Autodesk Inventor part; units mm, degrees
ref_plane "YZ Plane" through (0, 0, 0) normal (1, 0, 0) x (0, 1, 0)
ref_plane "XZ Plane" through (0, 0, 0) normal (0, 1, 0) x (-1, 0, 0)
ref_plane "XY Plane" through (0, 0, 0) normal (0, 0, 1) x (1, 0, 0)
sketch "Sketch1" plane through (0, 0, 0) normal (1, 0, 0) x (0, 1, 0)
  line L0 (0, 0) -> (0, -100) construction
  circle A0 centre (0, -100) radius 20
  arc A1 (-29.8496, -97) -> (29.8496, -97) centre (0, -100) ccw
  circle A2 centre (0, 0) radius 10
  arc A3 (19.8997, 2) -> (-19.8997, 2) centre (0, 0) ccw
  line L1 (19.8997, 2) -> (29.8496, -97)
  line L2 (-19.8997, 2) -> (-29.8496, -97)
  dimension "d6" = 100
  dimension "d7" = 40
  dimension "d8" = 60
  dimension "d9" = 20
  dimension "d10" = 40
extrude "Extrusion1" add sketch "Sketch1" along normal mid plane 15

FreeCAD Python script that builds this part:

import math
import FreeCAD as App
import Part
import Sketcher

V = App.Vector
Q = App.Units.Quantity

doc = App.newDocument("Part")
body = doc.addObject("PartDesign::Body", "Body")

sketch1 = body.newObject("Sketcher::SketchObject", "Sketch")
sketch1.AttachmentSupport = (doc.getObject("YZ_Plane"), [""])
sketch1.MapMode = "FlatFace"
sketch1.addGeometry(Part.LineSegment(V(-19.8997, 2, 0), V(-29.8496, -97, 0)), False)
sketch1.addGeometry(Part.ArcOfCircle(Part.Circle(V(0, -100, 0), V(0, 0, 1), 29.999977), math.radians(174.260825), math.radians(365.739175)), False)
sketch1.addGeometry(Part.LineSegment(V(29.8496, -97, 0), V(19.8997, 2, 0)), False)
sketch1.addGeometry(Part.ArcOfCircle(Part.Circle(V(0, 0, 0), V(0, 0, 1), 19.999952), math.radians(5.739184), math.radians(174.260816)), False)
sketch1.addGeometry(Part.Circle(V(0, -100, 0), V(0, 0, 1), 20), False)
sketch1.addGeometry(Part.Circle(V(0, 0, 0), V(0, 0, 1), 10), False)
sketch1.addConstraint(Sketcher.Constraint("Tangent", 0, 2, 1, 1))
sketch1.addConstraint(Sketcher.Constraint("Tangent", 1, 2, 2, 1))
sketch1.addConstraint(Sketcher.Constraint("Tangent", 2, 2, 3, 1))
sketch1.addConstraint(Sketcher.Constraint("Tangent", 3, 2, 0, 1))
sketch1.addConstraint(Sketcher.Constraint("Coincident", 3, 3, -1, 1))
sketch1.addConstraint(Sketcher.Constraint("Coincident", 5, 3, -1, 1))
sketch1.addConstraint(Sketcher.Constraint("Coincident", 4, 3, 1, 3))
sketch1.addConstraint(Sketcher.Constraint("Equal", 3, 4))
sketch1.addConstraint(Sketcher.Constraint("PointOnObject", 1, 3, -2))
sketch1.addConstraint(Sketcher.Constraint("Diameter", 4, Q("40 mm")))
sketch1.addConstraint(Sketcher.Constraint("Diameter", 5, Q("20 mm")))
sketch1.addConstraint(Sketcher.Constraint("Radius", 1, Q("30 mm")))
sketch1.addConstraint(Sketcher.Constraint("DistanceY", 1, 3, -1, 1, Q("100 mm")))
pad1 = body.newObject("PartDesign::Pad", "Pad")
pad1.Profile = sketch1
pad1.Length = 15
pad1.Midplane = True

doc.recompute()
